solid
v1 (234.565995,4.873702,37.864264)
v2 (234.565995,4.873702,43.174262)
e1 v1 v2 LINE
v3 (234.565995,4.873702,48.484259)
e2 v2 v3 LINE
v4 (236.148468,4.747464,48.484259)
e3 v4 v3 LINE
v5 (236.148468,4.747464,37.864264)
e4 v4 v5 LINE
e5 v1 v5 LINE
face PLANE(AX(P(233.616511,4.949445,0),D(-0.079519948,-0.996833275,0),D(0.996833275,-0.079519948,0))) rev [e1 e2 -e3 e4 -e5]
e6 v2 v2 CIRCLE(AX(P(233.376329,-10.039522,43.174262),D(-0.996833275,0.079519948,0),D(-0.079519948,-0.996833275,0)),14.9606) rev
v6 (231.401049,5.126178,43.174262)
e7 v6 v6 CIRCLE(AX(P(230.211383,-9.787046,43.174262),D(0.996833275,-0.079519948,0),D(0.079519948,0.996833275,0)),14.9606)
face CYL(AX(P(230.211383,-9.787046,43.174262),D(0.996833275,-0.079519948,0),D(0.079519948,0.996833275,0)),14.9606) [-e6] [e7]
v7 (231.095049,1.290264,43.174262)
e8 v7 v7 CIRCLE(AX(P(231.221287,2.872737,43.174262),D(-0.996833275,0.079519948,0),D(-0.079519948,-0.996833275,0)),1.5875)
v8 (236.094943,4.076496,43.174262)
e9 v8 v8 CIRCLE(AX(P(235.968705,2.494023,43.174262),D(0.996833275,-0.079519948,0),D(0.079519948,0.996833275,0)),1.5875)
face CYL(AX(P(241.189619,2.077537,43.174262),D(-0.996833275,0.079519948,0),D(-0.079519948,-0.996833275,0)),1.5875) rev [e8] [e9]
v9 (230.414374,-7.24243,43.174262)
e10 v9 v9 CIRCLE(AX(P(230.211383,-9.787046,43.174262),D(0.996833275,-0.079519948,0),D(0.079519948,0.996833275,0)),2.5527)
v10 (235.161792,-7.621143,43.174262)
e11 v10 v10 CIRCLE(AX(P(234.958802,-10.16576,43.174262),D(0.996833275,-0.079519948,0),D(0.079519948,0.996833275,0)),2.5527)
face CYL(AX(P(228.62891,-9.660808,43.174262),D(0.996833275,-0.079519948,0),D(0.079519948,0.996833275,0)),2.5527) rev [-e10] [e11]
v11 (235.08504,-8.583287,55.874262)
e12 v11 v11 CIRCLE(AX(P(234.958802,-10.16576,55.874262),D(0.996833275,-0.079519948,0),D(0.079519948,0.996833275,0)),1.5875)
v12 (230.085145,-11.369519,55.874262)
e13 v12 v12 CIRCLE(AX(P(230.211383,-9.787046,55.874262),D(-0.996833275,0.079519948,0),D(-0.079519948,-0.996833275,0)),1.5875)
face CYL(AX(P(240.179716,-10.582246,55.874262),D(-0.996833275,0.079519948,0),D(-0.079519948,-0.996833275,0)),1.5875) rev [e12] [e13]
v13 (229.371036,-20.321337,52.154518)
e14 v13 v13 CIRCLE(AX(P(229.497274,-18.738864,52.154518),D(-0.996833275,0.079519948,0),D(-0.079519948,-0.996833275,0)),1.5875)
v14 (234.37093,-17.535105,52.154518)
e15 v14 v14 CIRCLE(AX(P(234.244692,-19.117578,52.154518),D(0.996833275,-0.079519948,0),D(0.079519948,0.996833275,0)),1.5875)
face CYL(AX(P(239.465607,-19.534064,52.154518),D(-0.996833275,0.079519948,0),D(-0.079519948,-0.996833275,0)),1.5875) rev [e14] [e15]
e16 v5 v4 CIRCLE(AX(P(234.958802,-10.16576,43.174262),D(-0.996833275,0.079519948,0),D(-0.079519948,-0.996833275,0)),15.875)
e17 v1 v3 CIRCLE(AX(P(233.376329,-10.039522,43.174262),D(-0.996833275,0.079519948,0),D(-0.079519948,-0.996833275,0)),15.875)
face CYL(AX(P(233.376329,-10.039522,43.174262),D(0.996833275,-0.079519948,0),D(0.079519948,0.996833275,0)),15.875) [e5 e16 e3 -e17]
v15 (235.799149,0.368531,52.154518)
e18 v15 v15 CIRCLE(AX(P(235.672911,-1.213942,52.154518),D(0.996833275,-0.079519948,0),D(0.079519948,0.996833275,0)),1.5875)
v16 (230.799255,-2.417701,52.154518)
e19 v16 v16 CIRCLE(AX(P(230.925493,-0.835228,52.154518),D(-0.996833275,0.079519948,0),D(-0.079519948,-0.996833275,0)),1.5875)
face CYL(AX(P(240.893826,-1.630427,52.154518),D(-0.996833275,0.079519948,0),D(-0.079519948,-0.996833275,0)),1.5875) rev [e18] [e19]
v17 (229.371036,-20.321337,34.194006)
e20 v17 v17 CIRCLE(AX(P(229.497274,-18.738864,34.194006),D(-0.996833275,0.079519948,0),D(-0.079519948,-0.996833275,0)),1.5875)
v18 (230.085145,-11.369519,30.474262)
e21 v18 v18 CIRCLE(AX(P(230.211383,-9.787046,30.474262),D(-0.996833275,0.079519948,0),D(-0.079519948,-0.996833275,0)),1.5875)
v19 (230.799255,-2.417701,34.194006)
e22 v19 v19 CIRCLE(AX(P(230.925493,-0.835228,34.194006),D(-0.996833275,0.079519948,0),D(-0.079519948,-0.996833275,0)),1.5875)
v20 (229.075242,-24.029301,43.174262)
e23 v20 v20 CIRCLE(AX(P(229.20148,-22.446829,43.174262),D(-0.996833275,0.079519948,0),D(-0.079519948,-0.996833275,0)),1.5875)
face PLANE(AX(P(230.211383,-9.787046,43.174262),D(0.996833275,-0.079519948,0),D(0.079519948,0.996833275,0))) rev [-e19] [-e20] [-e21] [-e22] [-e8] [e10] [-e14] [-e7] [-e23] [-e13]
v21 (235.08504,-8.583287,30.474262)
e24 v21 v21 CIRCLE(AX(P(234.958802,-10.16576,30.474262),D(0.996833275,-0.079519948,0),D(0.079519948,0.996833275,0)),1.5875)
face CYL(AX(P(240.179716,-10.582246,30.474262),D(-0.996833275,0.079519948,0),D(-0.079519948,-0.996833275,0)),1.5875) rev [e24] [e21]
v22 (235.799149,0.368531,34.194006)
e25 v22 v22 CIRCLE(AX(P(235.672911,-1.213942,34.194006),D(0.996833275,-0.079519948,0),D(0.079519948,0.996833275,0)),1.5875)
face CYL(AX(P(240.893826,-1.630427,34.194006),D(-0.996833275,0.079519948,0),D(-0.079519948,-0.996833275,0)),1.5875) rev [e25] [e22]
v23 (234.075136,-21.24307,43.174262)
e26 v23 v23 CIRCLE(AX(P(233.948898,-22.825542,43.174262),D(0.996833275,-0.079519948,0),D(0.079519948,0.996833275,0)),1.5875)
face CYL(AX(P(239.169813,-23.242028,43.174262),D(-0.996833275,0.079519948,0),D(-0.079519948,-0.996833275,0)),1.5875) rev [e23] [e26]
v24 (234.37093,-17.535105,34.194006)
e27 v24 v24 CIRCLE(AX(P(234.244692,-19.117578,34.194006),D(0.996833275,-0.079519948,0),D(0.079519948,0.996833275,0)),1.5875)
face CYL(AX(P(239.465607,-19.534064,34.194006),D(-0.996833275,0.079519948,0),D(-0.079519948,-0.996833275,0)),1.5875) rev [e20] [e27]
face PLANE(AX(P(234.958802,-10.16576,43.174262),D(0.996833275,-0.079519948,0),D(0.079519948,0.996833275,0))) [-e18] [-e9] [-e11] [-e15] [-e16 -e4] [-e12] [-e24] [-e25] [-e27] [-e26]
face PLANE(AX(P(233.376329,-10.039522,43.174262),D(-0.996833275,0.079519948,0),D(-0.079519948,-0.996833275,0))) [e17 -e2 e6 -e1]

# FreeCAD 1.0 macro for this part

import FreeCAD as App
import Part
import Sketcher

V = App.Vector
Q = App.Units.Quantity

doc = App.newDocument("Part")
body = doc.addObject("PartDesign::Body", "Body")

sketch1 = body.newObject("Sketcher::SketchObject", "Sketch")
sketch1.Placement = App.Placement(V(234.278879, -18.689027, 0), App.Rotation(V(0, 0, -1), V(0.079519948, 0.996833275, 0), V(0.996833275, -0.079519948, 0), "ZXY"))
sketch1.addGeometry(Part.Circle(V(-43.174262, 8.550344, 0), V(0, 0, 1), 14.9606), False)
sketch1.addConstraint(Sketcher.Constraint("Diameter", 0, Q("1.178 in")))
sketch1.addConstraint(Sketcher.Constraint("DistanceX", 0, 3, -1, 1, 43.174262))
sketch1.addConstraint(Sketcher.Constraint("DistanceY", -1, 1, 0, 3, 8.550344))
pad1 = body.newObject("PartDesign::Pad", "Pad")
pad1.Profile = sketch1
pad1.Length = Q("0.1875 in")
pad1.Reversed = True

sketch2 = body.newObject("Sketcher::SketchObject", "Sketch001")
sketch2.Placement = App.Placement(V(234.278879, -18.689027, 0), App.Rotation(V(0, 0, -1), V(0.079519948, 0.996833275, 0), V(0.996833275, -0.079519948, 0), "ZXY"))
sketch2.addGeometry(Part.Circle(V(-43.174262, 8.550344, 0), V(0, 0, 1), 2.5527), False)
sketch2.addConstraint(Sketcher.Constraint("Diameter", 0, Q("0.201 in")))
sketch2.addConstraint(Sketcher.Constraint("DistanceX", 0, 3, -1, 1, 43.174262))
sketch2.addConstraint(Sketcher.Constraint("DistanceY", -1, 1, 0, 3, 8.550344))
pocket1 = body.newObject("PartDesign::Pocket", "Pocket")
pocket1.Profile = sketch2
pocket1.Length = Q("0.25 in")

sketch3 = body.newObject("Sketcher::SketchObject", "Sketch002")
sketch3.Placement = App.Placement(V(229.53146, -18.310313, 0), App.Rotation(V(0, 0, 1), V(0.079519948, 0.996833275, 0), V(-0.996833275, 0.079519948, 0), "ZXY"))
sketch3.addGeometry(Part.Circle(V(30.474262, 8.550344, 0), V(0, 0, 1), 1.5875), False)
sketch3.addGeometry(Part.Circle(V(43.174262, 21.250344, 0), V(0, 0, 1), 1.5875), False)
sketch3.addGeometry(Part.Circle(V(52.154518, 17.5306, 0), V(0, 0, 1), 1.5875), False)
sketch3.addGeometry(Part.Circle(V(55.874262, 8.550344, 0), V(0, 0, 1), 1.5875), False)
sketch3.addGeometry(Part.Circle(V(52.154518, -0.429912, 0), V(0, 0, 1), 1.5875), False)
sketch3.addGeometry(Part.Circle(V(43.174262, -4.149656, 0), V(0, 0, 1), 1.5875), False)
sketch3.addGeometry(Part.Circle(V(34.194006, -0.429912, 0), V(0, 0, 1), 1.5875), False)
sketch3.addGeometry(Part.Circle(V(34.194006, 17.5306, 0), V(0, 0, 1), 1.5875), False)
sketch3.addConstraint(Sketcher.Constraint("Equal", 0, 1))
sketch3.addConstraint(Sketcher.Constraint("Equal", 1, 2))
sketch3.addConstraint(Sketcher.Constraint("Equal", 2, 3))
sketch3.addConstraint(Sketcher.Constraint("Equal", 3, 4))
sketch3.addConstraint(Sketcher.Constraint("Equal", 4, 5))
sketch3.addConstraint(Sketcher.Constraint("Equal", 5, 6))
sketch3.addConstraint(Sketcher.Constraint("Equal", 6, 7))
sketch3.addConstraint(Sketcher.Constraint("Horizontal", 0, 3, 3, 3))
sketch3.addConstraint(Sketcher.Constraint("Horizontal", 4, 3, 6, 3))
sketch3.addConstraint(Sketcher.Constraint("Horizontal", 2, 3, 7, 3))
sketch3.addConstraint(Sketcher.Constraint("Vertical", 2, 3, 4, 3))
sketch3.addConstraint(Sketcher.Constraint("Vertical", 1, 3, 5, 3))
sketch3.addConstraint(Sketcher.Constraint("Vertical", 6, 3, 7, 3))
sketch3.addConstraint(Sketcher.Constraint("Diameter", 0, Q("0.125 in")))
sketch3.addConstraint(Sketcher.Constraint("DistanceX", 0, 3, 3, 3, Q("1 in")))
sketch3.addConstraint(Sketcher.Constraint("DistanceY", 5, 3, 1, 3, Q("1 in")))
sketch3.addConstraint(Sketcher.Constraint("DistanceX", 0, 3, 1, 3, Q("0.5 in")))
sketch3.addConstraint(Sketcher.Constraint("DistanceY", 0, 3, 1, 3, Q("0.5 in")))
sketch3.addConstraint(Sketcher.Constraint("DistanceY", -1, 1, 2, 3, 17.5306))
sketch3.addConstraint(Sketcher.Constraint("DistanceX", -1, 1, 0, 3, 30.474262))
sketch3.addConstraint(Sketcher.Constraint("DistanceY", -1, 1, 0, 3, 8.550344))
sketch3.addConstraint(Sketcher.Constraint("DistanceX", -1, 1, 2, 3, 52.154518))
sketch3.addConstraint(Sketcher.Constraint("DistanceY", 4, 3, -1, 1, 0.429912))
sketch3.addConstraint(Sketcher.Constraint("DistanceX", -1, 1, 6, 3, 34.194006))
pocket2 = body.newObject("PartDesign::Pocket", "Pocket001")
pocket2.Profile = sketch3
pocket2.Length = 10

sketch4 = body.newObject("Sketcher::SketchObject", "Sketch003")
sketch4.Placement = App.Placement(V(234.278879, -18.689027, 0), App.Rotation(V(0, 0, 1), V(0.079519948, 0.996833275, 0), V(-0.996833275, 0.079519948, 0), "ZXY"))
sketch4.addGeometry(Part.Circle(V(43.174262, 8.550344, 0), V(0, 0, 1), 15.875), False)
sketch4.addGeometry(Part.Circle(V(43.174262, 8.550344, 0), V(0, 0, 1), 14.9606), False)
sketch4.addConstraint(Sketcher.Constraint("Coincident", 1, 3, 0, 3))
sketch4.addConstraint(Sketcher.Constraint("Diameter", 0, Q("1.25 in")))
sketch4.addConstraint(Sketcher.Constraint("Diameter", 1, Q("1.178 in")))
sketch4.addConstraint(Sketcher.Constraint("DistanceX", -1, 1, 0, 3, 43.174262))
sketch4.addConstraint(Sketcher.Constraint("DistanceY", -1, 1, 0, 3, 8.550344))
pad2 = body.newObject("PartDesign::Pad", "Pad001")
pad2.Profile = sketch4
pad2.Length = Q("0.0625 in")

sketch5 = body.newObject("Sketcher::SketchObject", "Sketch004")
sketch5.Placement = App.Placement(V(234.278879, -18.689027, 0), App.Rotation(V(0, 0, -1), V(0.079519948, 0.996833275, 0), V(0.996833275, -0.079519948, 0), "ZXY"))
sketch5.addGeometry(Part.LineSegment(V(-133.921696, 23.510944, 0), V(47.573172, 23.510944, 0)), False)
sketch5.addGeometry(Part.LineSegment(V(47.573172, 23.510944, 0), V(47.573172, 194.385817, 0)), False)
sketch5.addGeometry(Part.LineSegment(V(47.573172, 194.385817, 0), V(-133.921696, 194.385817, 0)), False)
sketch5.addGeometry(Part.LineSegment(V(-133.921696, 194.385817, 0), V(-133.921696, 23.510944, 0)), False)
sketch5.addConstraint(Sketcher.Constraint("Coincident", 0, 2, 1, 1))
sketch5.addConstraint(Sketcher.Constraint("Coincident", 1, 2, 2, 1))
sketch5.addConstraint(Sketcher.Constraint("Coincident", 2, 2, 3, 1))
sketch5.addConstraint(Sketcher.Constraint("Coincident", 3, 2, 0, 1))
sketch5.addConstraint(Sketcher.Constraint("Horizontal", 0))
sketch5.addConstraint(Sketcher.Constraint("Vertical", 1))
sketch5.addConstraint(Sketcher.Constraint("Horizontal", 2))
sketch5.addConstraint(Sketcher.Constraint("Vertical", 3))
sketch5.addConstraint(Sketcher.Constraint("DistanceX", 0, 1, 0, 2, 181.494868))
sketch5.addConstraint(Sketcher.Constraint("DistanceY", 1, 1, 1, 2, 170.874873))
sketch5.addConstraint(Sketcher.Constraint("DistanceX", -1, 1, 0, 2, 47.573172))
sketch5.addConstraint(Sketcher.Constraint("DistanceY", -1, 1, 0, 2, 23.510944))
pocket3 = body.newObject("PartDesign::Pocket", "Pocket002")
pocket3.Profile = sketch5
pocket3.Length = Q("0.1 in")

doc.recompute()
